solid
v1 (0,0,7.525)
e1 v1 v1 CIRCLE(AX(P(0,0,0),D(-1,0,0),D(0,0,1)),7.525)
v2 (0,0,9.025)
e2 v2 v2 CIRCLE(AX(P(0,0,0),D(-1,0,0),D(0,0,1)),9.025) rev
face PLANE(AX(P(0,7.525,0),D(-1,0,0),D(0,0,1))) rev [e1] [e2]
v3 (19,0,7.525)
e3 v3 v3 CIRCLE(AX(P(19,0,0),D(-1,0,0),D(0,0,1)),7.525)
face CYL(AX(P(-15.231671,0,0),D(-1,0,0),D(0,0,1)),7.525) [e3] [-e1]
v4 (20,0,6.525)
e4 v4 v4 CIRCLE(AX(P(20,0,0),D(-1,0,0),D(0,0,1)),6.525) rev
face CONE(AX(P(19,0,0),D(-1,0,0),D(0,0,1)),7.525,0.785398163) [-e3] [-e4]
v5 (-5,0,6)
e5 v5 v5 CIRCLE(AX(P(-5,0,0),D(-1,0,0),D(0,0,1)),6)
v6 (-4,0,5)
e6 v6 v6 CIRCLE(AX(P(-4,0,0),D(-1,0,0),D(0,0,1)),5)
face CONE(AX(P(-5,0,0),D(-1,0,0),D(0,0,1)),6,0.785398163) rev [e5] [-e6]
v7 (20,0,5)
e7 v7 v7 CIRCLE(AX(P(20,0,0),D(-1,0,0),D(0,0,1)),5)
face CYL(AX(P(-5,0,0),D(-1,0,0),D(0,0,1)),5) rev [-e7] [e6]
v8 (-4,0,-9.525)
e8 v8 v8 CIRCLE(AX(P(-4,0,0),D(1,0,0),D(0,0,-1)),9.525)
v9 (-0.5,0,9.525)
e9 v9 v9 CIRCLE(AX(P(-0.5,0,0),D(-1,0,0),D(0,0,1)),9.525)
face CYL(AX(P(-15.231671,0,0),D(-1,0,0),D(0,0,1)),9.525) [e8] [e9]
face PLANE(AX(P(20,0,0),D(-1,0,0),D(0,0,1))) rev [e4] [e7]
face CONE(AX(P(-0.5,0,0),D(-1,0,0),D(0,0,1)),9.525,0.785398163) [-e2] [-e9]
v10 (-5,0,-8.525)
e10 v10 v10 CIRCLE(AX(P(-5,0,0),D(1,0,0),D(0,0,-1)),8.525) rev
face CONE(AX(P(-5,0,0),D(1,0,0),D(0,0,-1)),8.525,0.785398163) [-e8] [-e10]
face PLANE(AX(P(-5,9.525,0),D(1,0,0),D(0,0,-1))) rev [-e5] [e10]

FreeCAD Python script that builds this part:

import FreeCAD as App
import Part
import Sketcher

V = App.Vector


def edges_at(feature, points):
    """Names of the edges that pass closest to the given points."""
    edges = feature.Shape.Edges
    near = lambda p: min(range(len(edges)), key=lambda i: edges[i].distToShape(Part.Vertex(*p))[0])
    return sorted({f"Edge{near(p) + 1}" for p in points})

doc = App.newDocument("Part")
params = doc.addObject("Spreadsheet::Sheet", "Params")
for row, (alias, value) in enumerate([
    ("sketch1_width", "5 mm"),
    ("sketch1_width2", "25 mm"),
    ("sketch1_height", "2 mm"),
    ("revolution_angle", "360 deg"),
    ("chamfer_size", "1 mm"),
    ("chamfer2_size", "0.5 mm"),
    ("sketch2_diameter", "10 mm"),
    ("hole_diameter", "10 mm"),
    ("hole_csink_diameter", "12 mm"),
], start=1):
    params.set(f"A{row}", alias)
    params.set(f"B{row}", "=" + value)
    params.setAlias(f"B{row}", alias)

body = doc.addObject("PartDesign::Body", "Body")

# Sketch on XY plane
sketch1 = doc.addObject("Sketcher::SketchObject", "Sketch")
body.addObject(sketch1)
sketch1.AttachmentSupport = (doc.XY_Plane, [""])
sketch1.MapMode = "FlatFace"
sketch1.addGeometry([
    Part.LineSegment(V(0, 9.5, 0), V(-5, 9.5, 0)),  # 0
    Part.LineSegment(V(-5, 9.5, 0), V(-5, 0, 0)),  # 1
    Part.LineSegment(V(-5, 0, 0), V(20, 0, 0)),  # 2
    Part.LineSegment(V(20, 0, 0), V(20, 7.5, 0)),  # 3
    Part.LineSegment(V(20, 7.5, 0), V(0, 7.5, 0)),  # 4
    Part.LineSegment(V(0, 7.5, 0), V(0, 9.5, 0)),  # 5
], False)
sketch1.addConstraint([
    Sketcher.Constraint("Coincident", 0, 2, 1, 1),
    Sketcher.Constraint("Coincident", 1, 2, 2, 1),
    Sketcher.Constraint("Coincident", 2, 2, 3, 1),
    Sketcher.Constraint("Coincident", 3, 2, 4, 1),
    Sketcher.Constraint("Coincident", 4, 2, 5, 1),
    Sketcher.Constraint("Coincident", 5, 2, 0, 1),
    Sketcher.Constraint("Horizontal", 0),
    Sketcher.Constraint("Vertical", 1),
    Sketcher.Constraint("Horizontal", 2),
    Sketcher.Constraint("Vertical", 3),
    Sketcher.Constraint("Horizontal", 4),
    Sketcher.Constraint("Vertical", 5),
    Sketcher.Constraint("PointOnObject", 1, 2, -1),
    Sketcher.Constraint("PointOnObject", 4, 2, -2),
    Sketcher.Constraint("DistanceX", 0, 2, 0, 1, 5.0),
    Sketcher.Constraint("DistanceX", 2, 1, 2, 2, 25.0),
    Sketcher.Constraint("DistanceY", 5, 1, 5, 2, 2.0),
    Sketcher.Constraint("DistanceY", 1, 2, 1, 1, 9.525),
])
sketch1.setExpression("Constraints[14]", "Params.sketch1_width")
sketch1.setExpression("Constraints[15]", "Params.sketch1_width2")
sketch1.setExpression("Constraints[16]", "Params.sketch1_height")
revolution = doc.addObject("PartDesign::Revolution", "Revolution")
body.addObject(revolution)
revolution.Profile = sketch1
revolution.ReferenceAxis = (sketch1, ["H_Axis"])
revolution.setExpression("Angle", "Params.revolution_angle")
doc.recompute()

chamfer = doc.addObject("PartDesign::Chamfer", "Chamfer")
body.addObject(chamfer)
chamfer.Base = (revolution, edges_at(revolution, [(20, 0, -7.525), (-5, 0, -9.525)]))
chamfer.setExpression("Size", "Params.chamfer_size")
doc.recompute()

chamfer2 = doc.addObject("PartDesign::Chamfer", "Chamfer001")
body.addObject(chamfer2)
chamfer2.Base = (chamfer, edges_at(chamfer, [(0, 0, -9.525)]))
chamfer2.setExpression("Size", "Params.chamfer2_size")

# Sketch on YZ plane
sketch2 = doc.addObject("Sketcher::SketchObject", "Sketch001")
body.addObject(sketch2)
sketch2.AttachmentSupport = (doc.YZ_Plane, [""])
sketch2.MapMode = "FlatFace"
sketch2.AttachmentOffset = App.Placement(V(0, 0, -5), App.Rotation())
sketch2.addGeometry(Part.Circle(V(0, 0, 0), V(0, 0, 1), 5), False)
sketch2.addConstraint([
    Sketcher.Constraint("Coincident", 0, 3, -1, 1),
    Sketcher.Constraint("Diameter", 0, 10.0),
])
sketch2.setExpression("Constraints[1]", "Params.sketch2_diameter")
doc.recompute()
hole = doc.addObject("PartDesign::Hole", "Hole")
body.addObject(hole)
hole.Profile = sketch2
hole.ThreadType = "None"
hole.setExpression("Diameter", "Params.hole_diameter")
hole.DepthType = "ThroughAll"
hole.HoleCutType = "Countersink"
hole.setExpression("HoleCutDiameter", "Params.hole_csink_diameter")
hole.HoleCutCountersinkAngle = 90
hole.Reversed = True

doc.recompute()
